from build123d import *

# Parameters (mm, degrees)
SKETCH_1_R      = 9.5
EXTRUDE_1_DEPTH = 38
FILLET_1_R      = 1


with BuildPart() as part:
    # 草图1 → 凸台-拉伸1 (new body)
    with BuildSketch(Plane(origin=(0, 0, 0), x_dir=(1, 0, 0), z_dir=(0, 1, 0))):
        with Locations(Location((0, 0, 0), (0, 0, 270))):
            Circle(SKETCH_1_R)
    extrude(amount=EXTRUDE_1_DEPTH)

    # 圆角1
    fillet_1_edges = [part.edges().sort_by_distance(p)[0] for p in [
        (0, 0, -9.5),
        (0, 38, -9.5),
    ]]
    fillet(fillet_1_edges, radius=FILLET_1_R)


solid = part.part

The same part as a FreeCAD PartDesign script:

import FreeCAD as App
import Part
import Sketcher

V = App.Vector


def edges_at(feature, points):
    """Names of the edges that pass closest to the given points."""
    edges = feature.Shape.Edges
    near = lambda p: min(range(len(edges)), key=lambda i: edges[i].distToShape(Part.Vertex(*p))[0])
    return sorted({f"Edge{near(p) + 1}" for p in points})

doc = App.newDocument("Part")
body = doc.addObject("PartDesign::Body", "Body")

# Sketch on XZ plane
sketch1 = body.newObject("Sketcher::SketchObject", "Sketch")
sketch1.AttachmentSupport = (doc.getObject("XZ_Plane"), [""])
sketch1.MapMode = "FlatFace"
sketch1.addGeometry(Part.Circle(V(0, 0, 0), V(0, 0, 1), 10), False)
sketch1.addConstraint(Sketcher.Constraint("Coincident", 0, 3, -1, 1))
sketch1.addConstraint(Sketcher.Constraint("Diameter", 0, 19.0))
pad1 = body.newObject("PartDesign::Pad", "Pad")
pad1.Profile = sketch1
pad1.Length = 38
pad1.Reversed = True
doc.recompute()

fillet = body.newObject("PartDesign::Fillet", "Fillet")
fillet.Base = (pad1, edges_at(pad1, [(0, 0, -9.5), (0, 38, -9.5)]))
fillet.Radius = 1

doc.recompute()
